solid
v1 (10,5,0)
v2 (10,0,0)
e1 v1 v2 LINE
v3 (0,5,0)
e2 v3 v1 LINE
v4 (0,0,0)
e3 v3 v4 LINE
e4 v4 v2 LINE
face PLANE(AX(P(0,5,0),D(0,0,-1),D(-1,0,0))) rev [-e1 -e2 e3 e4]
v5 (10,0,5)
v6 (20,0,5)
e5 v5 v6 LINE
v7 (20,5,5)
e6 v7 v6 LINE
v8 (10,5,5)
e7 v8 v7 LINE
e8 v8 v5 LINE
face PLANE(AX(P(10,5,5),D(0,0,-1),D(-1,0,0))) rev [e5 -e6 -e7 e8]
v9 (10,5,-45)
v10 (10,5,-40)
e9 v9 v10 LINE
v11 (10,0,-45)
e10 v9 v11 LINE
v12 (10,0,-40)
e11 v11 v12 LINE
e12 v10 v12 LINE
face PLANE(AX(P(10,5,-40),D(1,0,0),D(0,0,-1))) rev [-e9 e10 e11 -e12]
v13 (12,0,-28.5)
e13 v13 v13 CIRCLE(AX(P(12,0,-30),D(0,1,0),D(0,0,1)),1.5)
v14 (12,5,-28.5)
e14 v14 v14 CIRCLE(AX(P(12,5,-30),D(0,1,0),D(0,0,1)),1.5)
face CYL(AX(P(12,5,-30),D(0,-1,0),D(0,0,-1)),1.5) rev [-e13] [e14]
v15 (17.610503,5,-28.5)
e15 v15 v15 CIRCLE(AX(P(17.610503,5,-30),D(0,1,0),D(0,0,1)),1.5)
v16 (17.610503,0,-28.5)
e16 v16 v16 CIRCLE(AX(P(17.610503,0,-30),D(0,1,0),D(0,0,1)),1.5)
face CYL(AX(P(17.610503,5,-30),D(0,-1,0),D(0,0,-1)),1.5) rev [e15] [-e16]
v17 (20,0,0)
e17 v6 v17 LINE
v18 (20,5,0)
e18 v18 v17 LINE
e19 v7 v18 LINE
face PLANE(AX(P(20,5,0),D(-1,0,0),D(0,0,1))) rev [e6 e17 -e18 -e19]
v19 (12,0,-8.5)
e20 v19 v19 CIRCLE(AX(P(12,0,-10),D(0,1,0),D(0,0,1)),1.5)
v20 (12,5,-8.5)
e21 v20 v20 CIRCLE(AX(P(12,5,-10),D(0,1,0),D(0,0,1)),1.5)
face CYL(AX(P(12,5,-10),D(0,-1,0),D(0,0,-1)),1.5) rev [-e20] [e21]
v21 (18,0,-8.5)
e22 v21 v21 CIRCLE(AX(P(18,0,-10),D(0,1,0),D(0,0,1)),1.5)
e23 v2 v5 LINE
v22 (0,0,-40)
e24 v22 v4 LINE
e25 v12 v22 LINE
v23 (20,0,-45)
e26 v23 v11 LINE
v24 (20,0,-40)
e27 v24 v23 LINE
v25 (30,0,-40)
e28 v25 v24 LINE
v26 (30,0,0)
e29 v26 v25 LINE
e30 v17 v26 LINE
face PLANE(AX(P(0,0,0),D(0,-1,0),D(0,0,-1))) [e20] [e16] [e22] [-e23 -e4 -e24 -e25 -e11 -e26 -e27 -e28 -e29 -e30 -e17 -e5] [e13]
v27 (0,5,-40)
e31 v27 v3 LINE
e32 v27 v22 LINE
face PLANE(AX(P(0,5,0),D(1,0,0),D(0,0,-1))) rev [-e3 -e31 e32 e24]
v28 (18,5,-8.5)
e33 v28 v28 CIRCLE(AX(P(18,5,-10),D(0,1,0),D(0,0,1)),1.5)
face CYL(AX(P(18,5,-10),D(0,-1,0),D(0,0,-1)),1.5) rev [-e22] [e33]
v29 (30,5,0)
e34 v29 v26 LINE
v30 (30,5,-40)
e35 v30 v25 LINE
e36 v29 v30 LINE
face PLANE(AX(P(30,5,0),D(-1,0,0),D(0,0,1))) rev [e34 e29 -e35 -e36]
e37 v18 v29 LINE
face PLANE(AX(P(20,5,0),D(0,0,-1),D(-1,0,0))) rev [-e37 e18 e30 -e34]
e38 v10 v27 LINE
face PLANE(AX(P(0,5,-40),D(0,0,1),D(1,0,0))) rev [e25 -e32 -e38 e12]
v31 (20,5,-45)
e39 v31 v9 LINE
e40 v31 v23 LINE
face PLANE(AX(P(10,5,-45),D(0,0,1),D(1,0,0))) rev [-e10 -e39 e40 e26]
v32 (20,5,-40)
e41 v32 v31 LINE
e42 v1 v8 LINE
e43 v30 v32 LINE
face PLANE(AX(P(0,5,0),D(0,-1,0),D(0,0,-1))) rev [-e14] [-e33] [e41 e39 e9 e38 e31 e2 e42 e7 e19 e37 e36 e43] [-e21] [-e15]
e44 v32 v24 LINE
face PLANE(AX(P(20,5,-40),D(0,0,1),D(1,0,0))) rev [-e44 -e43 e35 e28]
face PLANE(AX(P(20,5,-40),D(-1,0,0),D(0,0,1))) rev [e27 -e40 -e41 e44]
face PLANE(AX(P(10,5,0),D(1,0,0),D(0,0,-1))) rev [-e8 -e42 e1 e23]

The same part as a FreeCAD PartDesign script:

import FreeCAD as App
import Part
import Sketcher

V = App.Vector
Q = App.Units.Quantity

doc = App.newDocument("Part")
body = doc.addObject("PartDesign::Body", "Body")

# Sketch on XZ plane
sketch1 = body.newObject("Sketcher::SketchObject", "Sketch")
sketch1.AttachmentSupport = (doc.getObject("XZ_Plane"), [""])
sketch1.MapMode = "FlatFace"
sketch1.addGeometry(Part.LineSegment(V(30, -40, 0), V(20, -40, 0)), False)
sketch1.addGeometry(Part.LineSegment(V(20, -40, 0), V(20, -45, 0)), False)
sketch1.addGeometry(Part.LineSegment(V(20, -45, 0), V(10, -45, 0)), False)
sketch1.addGeometry(Part.LineSegment(V(10, -45, 0), V(10, -40, 0)), False)
sketch1.addGeometry(Part.LineSegment(V(10, -40, 0), V(0, -40, 0)), False)
sketch1.addGeometry(Part.LineSegment(V(0, -40, 0), V(0, 0, 0)), False)
sketch1.addGeometry(Part.LineSegment(V(0, 0, 0), V(10, 0, 0)), False)
sketch1.addGeometry(Part.LineSegment(V(10, 0, 0), V(10, 5, 0)), False)
sketch1.addGeometry(Part.LineSegment(V(10, 5, 0), V(20, 5, 0)), False)
sketch1.addGeometry(Part.LineSegment(V(20, 5, 0), V(20, 0, 0)), False)
sketch1.addGeometry(Part.LineSegment(V(20, 0, 0), V(30, 0, 0)), False)
sketch1.addGeometry(Part.LineSegment(V(30, 0, 0), V(30, -40, 0)), False)
sketch1.addGeometry(Part.Circle(V(18, -10, 0), V(0, 0, 1), 1.5), False)
sketch1.addGeometry(Part.Circle(V(12, -10, 0), V(0, 0, 1), 1.5), False)
sketch1.addGeometry(Part.Circle(V(17.610503, -30, 0), V(0, 0, 1), 1.5), False)
sketch1.addGeometry(Part.Circle(V(12, -30, 0), V(0, 0, 1), 1.5), False)
sketch1.addConstraint(Sketcher.Constraint("Coincident", 0, 2, 1, 1))
sketch1.addConstraint(Sketcher.Constraint("Coincident", 1, 2, 2, 1))
sketch1.addConstraint(Sketcher.Constraint("Coincident", 2, 2, 3, 1))
sketch1.addConstraint(Sketcher.Constraint("Coincident", 3, 2, 4, 1))
sketch1.addConstraint(Sketcher.Constraint("Coincident", 4, 2, 5, 1))
sketch1.addConstraint(Sketcher.Constraint("Coincident", 5, 2, 6, 1))
sketch1.addConstraint(Sketcher.Constraint("Coincident", 6, 2, 7, 1))
sketch1.addConstraint(Sketcher.Constraint("Coincident", 7, 2, 8, 1))
sketch1.addConstraint(Sketcher.Constraint("Coincident", 8, 2, 9, 1))
sketch1.addConstraint(Sketcher.Constraint("Coincident", 9, 2, 10, 1))
sketch1.addConstraint(Sketcher.Constraint("Coincident", 10, 2, 11, 1))
sketch1.addConstraint(Sketcher.Constraint("Coincident", 11, 2, 0, 1))
sketch1.addConstraint(Sketcher.Constraint("Horizontal", 0))
sketch1.addConstraint(Sketcher.Constraint("Vertical", 1))
sketch1.addConstraint(Sketcher.Constraint("Horizontal", 2))
sketch1.addConstraint(Sketcher.Constraint("Vertical", 3))
sketch1.addConstraint(Sketcher.Constraint("Horizontal", 4))
sketch1.addConstraint(Sketcher.Constraint("Vertical", 5))
sketch1.addConstraint(Sketcher.Constraint("Horizontal", 6))
sketch1.addConstraint(Sketcher.Constraint("Vertical", 7))
sketch1.addConstraint(Sketcher.Constraint("Horizontal", 8))
sketch1.addConstraint(Sketcher.Constraint("Vertical", 9))
sketch1.addConstraint(Sketcher.Constraint("Horizontal", 10))
sketch1.addConstraint(Sketcher.Constraint("Vertical", 11))
sketch1.addConstraint(Sketcher.Constraint("Coincident", 5, 2, -1, 1))
sketch1.addConstraint(Sketcher.Constraint("Equal", 12, 13))
sketch1.addConstraint(Sketcher.Constraint("Equal", 13, 14))
sketch1.addConstraint(Sketcher.Constraint("Equal", 14, 15))
sketch1.addConstraint(Sketcher.Constraint("PointOnObject", 9, 2, -1))
sketch1.addConstraint(Sketcher.Constraint("Horizontal", 12, 3, 13, 3))
sketch1.addConstraint(Sketcher.Constraint("Horizontal", 14, 3, 15, 3))
sketch1.addConstraint(Sketcher.Constraint("Horizontal", 0, 2, 3, 2))
sketch1.addConstraint(Sketcher.Constraint("Vertical", 13, 3, 15, 3))
sketch1.addConstraint(Sketcher.Constraint("Vertical", 3, 2, 6, 2))
sketch1.addConstraint(Sketcher.Constraint("Vertical", 1, 2, 8, 2))
sketch1.addConstraint(Sketcher.Constraint("Equal", 0, 2))
sketch1.addConstraint(Sketcher.Constraint("Equal", 2, 4))
sketch1.addConstraint(Sketcher.Constraint("Equal", 3, 7))
sketch1.addConstraint(Sketcher.Constraint("Diameter", 12, Q("3 mm")))
sketch1.addConstraint(Sketcher.Constraint("DistanceX", 0, 2, 0, 1, Q("10 mm")))
sketch1.addConstraint(Sketcher.Constraint("DistanceY", 1, 2, 1, 1, Q("5 mm")))
sketch1.addConstraint(Sketcher.Constraint("DistanceY", 5, 1, 5, 2, Q("40 mm")))
sketch1.addConstraint(Sketcher.Constraint("DistanceX", -1, 1, 12, 3, Q("18 mm")))
sketch1.addConstraint(Sketcher.Constraint("DistanceY", 12, 3, -1, 1, Q("10 mm")))
sketch1.addConstraint(Sketcher.Constraint("DistanceX", -1, 1, 13, 3, Q("12 mm")))
sketch1.addConstraint(Sketcher.Constraint("DistanceY", 14, 3, -1, 1, Q("30 mm")))
sketch1.addConstraint(Sketcher.Constraint("DistanceX", -1, 1, 14, 3, Q("17.610503 mm")))
pad1 = body.newObject("PartDesign::Pad", "Pad")
pad1.Profile = sketch1
pad1.Length = 5
pad1.Reversed = True

doc.recompute()
